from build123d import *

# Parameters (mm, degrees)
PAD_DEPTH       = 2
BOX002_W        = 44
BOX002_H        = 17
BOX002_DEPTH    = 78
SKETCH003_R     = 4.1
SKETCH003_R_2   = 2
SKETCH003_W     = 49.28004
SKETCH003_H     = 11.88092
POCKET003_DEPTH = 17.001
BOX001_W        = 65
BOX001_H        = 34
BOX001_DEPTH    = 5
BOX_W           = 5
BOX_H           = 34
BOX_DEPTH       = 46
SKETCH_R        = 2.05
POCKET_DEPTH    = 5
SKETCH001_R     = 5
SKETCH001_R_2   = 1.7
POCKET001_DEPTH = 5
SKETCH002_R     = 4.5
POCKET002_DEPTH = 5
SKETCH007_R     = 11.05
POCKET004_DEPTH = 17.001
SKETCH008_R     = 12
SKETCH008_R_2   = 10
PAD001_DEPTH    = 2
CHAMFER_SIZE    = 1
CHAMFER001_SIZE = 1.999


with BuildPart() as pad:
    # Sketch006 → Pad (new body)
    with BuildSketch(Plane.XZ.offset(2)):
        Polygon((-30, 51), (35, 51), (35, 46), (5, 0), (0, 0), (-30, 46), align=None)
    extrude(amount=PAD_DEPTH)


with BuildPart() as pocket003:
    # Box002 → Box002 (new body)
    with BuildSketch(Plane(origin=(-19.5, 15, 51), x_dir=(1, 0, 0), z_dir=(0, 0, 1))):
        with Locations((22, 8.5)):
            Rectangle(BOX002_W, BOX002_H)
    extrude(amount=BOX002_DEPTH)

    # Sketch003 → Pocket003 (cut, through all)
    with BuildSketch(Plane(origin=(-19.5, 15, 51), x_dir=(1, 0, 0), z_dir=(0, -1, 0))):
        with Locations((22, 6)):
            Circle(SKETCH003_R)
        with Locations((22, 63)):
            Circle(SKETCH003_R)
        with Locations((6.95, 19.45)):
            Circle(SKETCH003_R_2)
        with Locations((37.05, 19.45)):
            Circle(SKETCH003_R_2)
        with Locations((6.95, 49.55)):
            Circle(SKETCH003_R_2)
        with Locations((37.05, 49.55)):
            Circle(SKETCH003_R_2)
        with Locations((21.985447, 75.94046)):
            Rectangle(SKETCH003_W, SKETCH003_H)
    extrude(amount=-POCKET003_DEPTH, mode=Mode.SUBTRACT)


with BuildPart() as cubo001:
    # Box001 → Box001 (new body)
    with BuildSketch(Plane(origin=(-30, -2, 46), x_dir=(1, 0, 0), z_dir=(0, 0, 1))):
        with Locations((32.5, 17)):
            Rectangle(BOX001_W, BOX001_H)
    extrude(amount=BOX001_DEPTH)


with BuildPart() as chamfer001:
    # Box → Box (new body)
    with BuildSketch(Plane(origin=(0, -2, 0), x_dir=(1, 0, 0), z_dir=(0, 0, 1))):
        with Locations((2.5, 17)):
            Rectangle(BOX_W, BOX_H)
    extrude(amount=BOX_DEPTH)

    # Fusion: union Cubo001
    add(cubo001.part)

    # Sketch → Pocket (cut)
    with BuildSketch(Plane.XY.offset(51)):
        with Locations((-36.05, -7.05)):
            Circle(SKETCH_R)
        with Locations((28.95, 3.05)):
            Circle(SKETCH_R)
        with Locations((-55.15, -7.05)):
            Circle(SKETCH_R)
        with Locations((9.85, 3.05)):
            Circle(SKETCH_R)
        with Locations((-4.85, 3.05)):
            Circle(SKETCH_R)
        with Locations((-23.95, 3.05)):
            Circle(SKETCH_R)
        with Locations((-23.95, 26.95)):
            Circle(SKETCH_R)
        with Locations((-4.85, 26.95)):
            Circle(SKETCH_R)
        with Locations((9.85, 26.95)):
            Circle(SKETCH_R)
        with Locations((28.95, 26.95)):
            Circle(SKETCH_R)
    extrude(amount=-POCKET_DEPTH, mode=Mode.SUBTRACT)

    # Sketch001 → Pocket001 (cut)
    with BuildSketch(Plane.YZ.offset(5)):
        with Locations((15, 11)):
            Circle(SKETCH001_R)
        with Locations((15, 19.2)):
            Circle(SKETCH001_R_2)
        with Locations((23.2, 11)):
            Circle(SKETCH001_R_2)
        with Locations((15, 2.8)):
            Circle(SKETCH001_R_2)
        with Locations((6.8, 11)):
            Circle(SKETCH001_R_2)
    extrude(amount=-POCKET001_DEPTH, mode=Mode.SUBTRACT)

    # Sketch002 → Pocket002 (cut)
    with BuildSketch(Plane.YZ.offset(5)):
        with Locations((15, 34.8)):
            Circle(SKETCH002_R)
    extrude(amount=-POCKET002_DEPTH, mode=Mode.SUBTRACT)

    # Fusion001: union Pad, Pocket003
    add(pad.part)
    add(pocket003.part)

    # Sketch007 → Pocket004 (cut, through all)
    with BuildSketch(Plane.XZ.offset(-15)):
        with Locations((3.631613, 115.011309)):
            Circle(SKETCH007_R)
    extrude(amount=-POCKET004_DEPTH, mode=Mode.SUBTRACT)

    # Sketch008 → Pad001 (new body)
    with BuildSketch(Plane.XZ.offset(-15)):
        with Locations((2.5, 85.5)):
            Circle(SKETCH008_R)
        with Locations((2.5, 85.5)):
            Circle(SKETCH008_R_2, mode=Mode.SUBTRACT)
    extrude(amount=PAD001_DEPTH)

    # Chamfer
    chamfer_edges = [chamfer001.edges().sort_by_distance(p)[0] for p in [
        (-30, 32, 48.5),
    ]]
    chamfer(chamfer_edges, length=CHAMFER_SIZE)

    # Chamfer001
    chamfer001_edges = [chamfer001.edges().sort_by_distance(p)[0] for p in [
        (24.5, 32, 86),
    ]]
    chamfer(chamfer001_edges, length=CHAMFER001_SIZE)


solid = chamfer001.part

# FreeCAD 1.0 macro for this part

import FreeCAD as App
import Part
import Sketcher
from FreeCAD import Vector


def edges_at(feature, points):
    """Names of the edges that pass closest to the given points."""
    edges = feature.Shape.Edges
    near = lambda p: min(range(len(edges)), key=lambda i: edges[i].distToShape(Part.Vertex(*p))[0])
    return sorted({f"Edge{near(p) + 1}" for p in points})

doc = App.newDocument("Part")
body = doc.addObject("PartDesign::Body", "Body")

sketch1 = body.newObject("Sketcher::SketchObject", "Sketch")
sketch1.AttachmentSupport = (doc.getObject("XZ_Plane"), [""])
sketch1.MapMode = "FlatFace"
sketch1.AttachmentOffset = App.Placement(Vector(0, 0, 2), App.Rotation())
sketch1.addGeometry([
    Part.LineSegment(Vector(35, 51, 0), Vector(-30, 51, 0)),
    Part.LineSegment(Vector(-30, 51, 0), Vector(-30, 46, 0)),
    Part.LineSegment(Vector(-30, 46, 0), Vector(0, 0, 0)),
    Part.LineSegment(Vector(0, 0, 0), Vector(5, 0, 0)),
    Part.LineSegment(Vector(5, 0, 0), Vector(35, 46, 0)),
    Part.LineSegment(Vector(35, 46, 0), Vector(35, 51, 0)),
], False)
sketch1.addConstraint([
    Sketcher.Constraint("Coincident", 0, 2, 1, 1),
    Sketcher.Constraint("Coincident", 1, 2, 2, 1),
    Sketcher.Constraint("Coincident", 2, 2, 3, 1),
    Sketcher.Constraint("Coincident", 3, 2, 4, 1),
    Sketcher.Constraint("Coincident", 4, 2, 5, 1),
    Sketcher.Constraint("Coincident", 5, 2, 0, 1),
    Sketcher.Constraint("Horizontal", 0),
    Sketcher.Constraint("Vertical", 1),
    Sketcher.Constraint("Horizontal", 3),
    Sketcher.Constraint("Vertical", 5),
    Sketcher.Constraint("Coincident", 2, 2, -1, 1),
    Sketcher.Constraint("Horizontal", 1, 2, 4, 2),
    Sketcher.Constraint("Equal", 3, 1),
    Sketcher.Constraint("Equal", 2, 4),
    Sketcher.Constraint("DistanceX", 0, 2, 0, 1, 65.0),
    Sketcher.Constraint("DistanceX", 3, 1, 3, 2, 5.0),
    Sketcher.Constraint("DistanceY", -1, 1, 0, 2, 51.0),
])
pad1 = body.newObject("PartDesign::Pad", "Pad")
pad1.Profile = sketch1
pad1.Length = 2
body2 = doc.addObject("PartDesign::Body", "Body001")

sketch2 = body2.newObject("Sketcher::SketchObject", "Sketch001")
sketch2.AttachmentSupport = (doc.getObject("XY_Plane001"), [""])
sketch2.MapMode = "FlatFace"
sketch2.AttachmentOffset = App.Placement(Vector(0, 0, 51), App.Rotation())
sketch2.addGeometry([
    Part.LineSegment(Vector(-20, 32, 0), Vector(-20, 15, 0)),
    Part.LineSegment(Vector(-20, 15, 0), Vector(24, 15, 0)),
    Part.LineSegment(Vector(24, 15, 0), Vector(24, 32, 0)),
    Part.LineSegment(Vector(24, 32, 0), Vector(-20, 32, 0)),
], False)
sketch2.addConstraint([
    Sketcher.Constraint("Coincident", 0, 2, 1, 1),
    Sketcher.Constraint("Coincident", 1, 2, 2, 1),
    Sketcher.Constraint("Coincident", 2, 2, 3, 1),
    Sketcher.Constraint("Coincident", 3, 2, 0, 1),
    Sketcher.Constraint("Vertical", 0),
    Sketcher.Constraint("Horizontal", 1),
    Sketcher.Constraint("Vertical", 2),
    Sketcher.Constraint("Horizontal", 3),
    Sketcher.Constraint("DistanceX", 1, 1, 1, 2, 44.0),
    Sketcher.Constraint("DistanceY", 0, 2, 0, 1, 17.0),
    Sketcher.Constraint("DistanceY", -1, 1, 0, 2, 15.0),
    Sketcher.Constraint("DistanceX", 0, 2, -1, 1, 19.5),
])
pad2 = body2.newObject("PartDesign::Pad", "Pad001")
pad2.Profile = sketch2
pad2.Length = 78

sketch3 = body2.newObject("Sketcher::SketchObject", "Sketch002")
sketch3.AttachmentSupport = (doc.getObject("XZ_Plane001"), [""])
sketch3.MapMode = "FlatFace"
sketch3.AttachmentOffset = App.Placement(Vector(0, 0, -15), App.Rotation())
sketch3.addGeometry([
    Part.Circle(Vector(2.5, 57, 0), Vector(0, 0, 1), 4.1),
    Part.Circle(Vector(2.5, 114, 0), Vector(0, 0, 1), 4.1),
    Part.Circle(Vector(-12.6, 70.5, 0), Vector(0, 0, 1), 2),
    Part.Circle(Vector(17.6, 70.5, 0), Vector(0, 0, 1), 2),
    Part.Circle(Vector(-12.6, 100.5, 0), Vector(0, 0, 1), 2),
    Part.Circle(Vector(17.6, 100.5, 0), Vector(0, 0, 1), 2),
    Part.LineSegment(Vector(-22.2, 132.9, 0), Vector(-22.2, 121, 0)),
    Part.LineSegment(Vector(-22.2, 121, 0), Vector(27.1, 121, 0)),
    Part.LineSegment(Vector(27.1, 121, 0), Vector(27.1, 132.9, 0)),
    Part.LineSegment(Vector(27.1, 132.9, 0), Vector(-22.2, 132.9, 0)),
], False)
sketch3.addConstraint([
    Sketcher.Constraint("Coincident", 6, 2, 7, 1),
    Sketcher.Constraint("Coincident", 7, 2, 8, 1),
    Sketcher.Constraint("Coincident", 8, 2, 9, 1),
    Sketcher.Constraint("Coincident", 9, 2, 6, 1),
    Sketcher.Constraint("Vertical", 6),
    Sketcher.Constraint("Horizontal", 7),
    Sketcher.Constraint("Vertical", 8),
    Sketcher.Constraint("Horizontal", 9),
    Sketcher.Constraint("Equal", 0, 1),
    Sketcher.Constraint("Equal", 2, 3),
    Sketcher.Constraint("Equal", 3, 4),
    Sketcher.Constraint("Equal", 4, 5),
    Sketcher.Constraint("Horizontal", 2, 3, 3, 3),
    Sketcher.Constraint("Horizontal", 4, 3, 5, 3),
    Sketcher.Constraint("Vertical", 0, 3, 1, 3),
    Sketcher.Constraint("Vertical", 2, 3, 4, 3),
    Sketcher.Constraint("Vertical", 3, 3, 5, 3),
    Sketcher.Constraint("Diameter", 2, 4.0),
    Sketcher.Constraint("Diameter", 0, 8.2),
    Sketcher.Constraint("DistanceY", -1, 1, 0, 3, 57.0),
    Sketcher.Constraint("DistanceY", -1, 1, 1, 3, 114.0),
    Sketcher.Constraint("DistanceY", -1, 1, 6, 2, 121.0),
    Sketcher.Constraint("DistanceX", -1, 1, 0, 3, 2.5),
    Sketcher.Constraint("DistanceX", 2, 3, 3, 3, 30.1),
    Sketcher.Constraint("DistanceY", 2, 3, 4, 3, 30.1),
    Sketcher.Constraint("DistanceX", 2, 3, -1, 1, 12.55),
    Sketcher.Constraint("DistanceY", -1, 1, 2, 3, 70.45),
    Sketcher.Constraint("DistanceX", 7, 1, 7, 2, 49.28004),
    Sketcher.Constraint("DistanceY", 6, 2, 6, 1, 11.88092),
    Sketcher.Constraint("DistanceX", 6, 2, -1, 1, 22.154573),
])
pocket1 = body2.newObject("PartDesign::Pocket", "Pocket")
pocket1.Profile = sketch3
pocket1.Type = "ThroughAll"
body3 = doc.addObject("PartDesign::Body", "Body002")

sketch4 = body3.newObject("Sketcher::SketchObject", "Sketch003")
sketch4.AttachmentSupport = (doc.getObject("XY_Plane002"), [""])
sketch4.MapMode = "FlatFace"
sketch4.AttachmentOffset = App.Placement(Vector(0, 0, 46), App.Rotation())
sketch4.addGeometry([
    Part.LineSegment(Vector(-30, 32, 0), Vector(-30, -2, 0)),
    Part.LineSegment(Vector(-30, -2, 0), Vector(35, -2, 0)),
    Part.LineSegment(Vector(35, -2, 0), Vector(35, 32, 0)),
    Part.LineSegment(Vector(35, 32, 0), Vector(-30, 32, 0)),
], False)
sketch4.addConstraint([
    Sketcher.Constraint("Coincident", 0, 2, 1, 1),
    Sketcher.Constraint("Coincident", 1, 2, 2, 1),
    Sketcher.Constraint("Coincident", 2, 2, 3, 1),
    Sketcher.Constraint("Coincident", 3, 2, 0, 1),
    Sketcher.Constraint("Vertical", 0),
    Sketcher.Constraint("Horizontal", 1),
    Sketcher.Constraint("Vertical", 2),
    Sketcher.Constraint("Horizontal", 3),
    Sketcher.Constraint("DistanceX", 1, 1, 1, 2, 65.0),
    Sketcher.Constraint("DistanceY", 0, 2, 0, 1, 34.0),
    Sketcher.Constraint("DistanceX", 0, 2, -1, 1, 30.0),
    Sketcher.Constraint("DistanceY", 0, 2, -1, 1, 2.0),
])
pad3 = body3.newObject("PartDesign::Pad", "Pad002")
pad3.Profile = sketch4
pad3.Length = 5
body4 = doc.addObject("PartDesign::Body", "Body003")

sketch5 = body4.newObject("Sketcher::SketchObject", "Sketch004")
sketch5.AttachmentSupport = (doc.getObject("XY_Plane003"), [""])
sketch5.MapMode = "FlatFace"
sketch5.addGeometry([
    Part.LineSegment(Vector(0, 32, 0), Vector(0, -2, 0)),
    Part.LineSegment(Vector(0, -2, 0), Vector(5, -2, 0)),
    Part.LineSegment(Vector(5, -2, 0), Vector(5, 32, 0)),
    Part.LineSegment(Vector(5, 32, 0), Vector(0, 32, 0)),
], False)
sketch5.addConstraint([
    Sketcher.Constraint("Coincident", 0, 2, 1, 1),
    Sketcher.Constraint("Coincident", 1, 2, 2, 1),
    Sketcher.Constraint("Coincident", 2, 2, 3, 1),
    Sketcher.Constraint("Coincident", 3, 2, 0, 1),
    Sketcher.Constraint("Vertical", 0),
    Sketcher.Constraint("Horizontal", 1),
    Sketcher.Constraint("Vertical", 2),
    Sketcher.Constraint("Horizontal", 3),
    Sketcher.Constraint("PointOnObject", 0, 2, -2),
    Sketcher.Constraint("DistanceX", 1, 1, 1, 2, 5.0),
    Sketcher.Constraint("DistanceY", 0, 2, 0, 1, 34.0),
    Sketcher.Constraint("DistanceY", 0, 2, -1, 1, 2.0),
])
pad4 = body4.newObject("PartDesign::Pad", "Pad003")
pad4.Profile = sketch5
pad4.Length = 46
doc.recompute()

boolean = body4.newObject("PartDesign::Boolean", "Boolean")
boolean.Type = "Fuse"
boolean.addObjects([body3])

sketch6 = body4.newObject("Sketcher::SketchObject", "Sketch005")
sketch6.AttachmentSupport = (doc.getObject("XY_Plane003"), [""])
sketch6.MapMode = "FlatFace"
sketch6.AttachmentOffset = App.Placement(Vector(0, 0, 51), App.Rotation())
sketch6.addGeometry([
    Part.Circle(Vector(-36, -7, 0), Vector(0, 0, 1), 2),
    Part.Circle(Vector(28.9, 3, 0), Vector(0, 0, 1), 2),
    Part.Circle(Vector(-55.1, -7, 0), Vector(0, 0, 1), 2),
    Part.Circle(Vector(9.8, 3, 0), Vector(0, 0, 1), 2),
    Part.Circle(Vector(-4.8, 3, 0), Vector(0, 0, 1), 2),
    Part.Circle(Vector(-23.9, 3, 0), Vector(0, 0, 1), 2),
    Part.Circle(Vector(-23.9, 26.9, 0), Vector(0, 0, 1), 2),
    Part.Circle(Vector(-4.8, 26.9, 0), Vector(0, 0, 1), 2),
    Part.Circle(Vector(9.8, 26.9, 0), Vector(0, 0, 1), 2),
    Part.Circle(Vector(28.9, 26.9, 0), Vector(0, 0, 1), 2),
], False)
sketch6.addConstraint([
    Sketcher.Constraint("Equal", 0, 1),
    Sketcher.Constraint("Equal", 1, 2),
    Sketcher.Constraint("Equal", 2, 3),
    Sketcher.Constraint("Equal", 3, 4),
    Sketcher.Constraint("Equal", 4, 5),
    Sketcher.Constraint("Equal", 5, 6),
    Sketcher.Constraint("Equal", 6, 7),
    Sketcher.Constraint("Equal", 7, 8),
    Sketcher.Constraint("Equal", 8, 9),
    Sketcher.Constraint("Horizontal", 0, 3, 2, 3),
    Sketcher.Constraint("Horizontal", 1, 3, 3, 3),
    Sketcher.Constraint("Horizontal", 3, 3, 4, 3),
    Sketcher.Constraint("Horizontal", 4, 3, 5, 3),
    Sketcher.Constraint("Horizontal", 6, 3, 7, 3),
    Sketcher.Constraint("Horizontal", 7, 3, 8, 3),
    Sketcher.Constraint("Horizontal", 8, 3, 9, 3),
    Sketcher.Constraint("Vertical", 5, 3, 6, 3),
    Sketcher.Constraint("Vertical", 4, 3, 7, 3),
    Sketcher.Constraint("Vertical", 3, 3, 8, 3),
    Sketcher.Constraint("Vertical", 1, 3, 9, 3),
    Sketcher.Constraint("Diameter", 0, 4.1),
    Sketcher.Constraint("DistanceX", 0, 3, 1, 3, 65.0),
    Sketcher.Constraint("DistanceX", 2, 3, 3, 3, 65.0),
    Sketcher.Constraint("DistanceY", 0, 3, 6, 3, 34.0),
    Sketcher.Constraint("DistanceY", 0, 3, 1, 3, 10.1),
    Sketcher.Constraint("DistanceX", 2, 3, 0, 3, 19.1),
    Sketcher.Constraint("DistanceX", 4, 3, 3, 3, 14.7),
    Sketcher.Constraint("DistanceX", 0, 3, 5, 3, 12.1),
    Sketcher.Constraint("DistanceX", 0, 3, -1, 1, 36.05),
    Sketcher.Constraint("DistanceY", 0, 3, -1, 1, 7.05),
])
pocket2 = body4.newObject("PartDesign::Pocket", "Pocket001")
pocket2.Profile = sketch6
pocket2.Length = 5

sketch7 = body4.newObject("Sketcher::SketchObject", "Sketch006")
sketch7.AttachmentSupport = (doc.getObject("YZ_Plane003"), [""])
sketch7.MapMode = "FlatFace"
sketch7.AttachmentOffset = App.Placement(Vector(0, 0, 5), App.Rotation())
sketch7.addGeometry([
    Part.Circle(Vector(15, 11, 0), Vector(0, 0, 1), 5),
    Part.Circle(Vector(15, 19.2, 0), Vector(0, 0, 1), 1.7),
    Part.Circle(Vector(23.2, 11, 0), Vector(0, 0, 1), 1.7),
    Part.Circle(Vector(15, 2.8, 0), Vector(0, 0, 1), 1.7),
    Part.Circle(Vector(6.8, 11, 0), Vector(0, 0, 1), 1.7),
], False)
sketch7.addConstraint([
    Sketcher.Constraint("Equal", 1, 2),
    Sketcher.Constraint("Equal", 2, 3),
    Sketcher.Constraint("Equal", 3, 4),
    Sketcher.Constraint("Horizontal", 0, 3, 2, 3),
    Sketcher.Constraint("Horizontal", 2, 3, 4, 3),
    Sketcher.Constraint("Vertical", 0, 3, 1, 3),
    Sketcher.Constraint("Vertical", 1, 3, 3, 3),
    Sketcher.Constraint("Diameter", 0, 10.0),
    Sketcher.Constraint("Diameter", 1, 3.4),
    Sketcher.Constraint("DistanceX", -1, 1, 0, 3, 15.0),
    Sketcher.Constraint("DistanceY", -1, 1, 0, 3, 11.0),
    Sketcher.Constraint("DistanceY", -1, 1, 1, 3, 19.2),
    Sketcher.Constraint("DistanceX", -1, 1, 2, 3, 23.2),
    Sketcher.Constraint("DistanceY", -1, 1, 3, 3, 2.8),
    Sketcher.Constraint("DistanceX", -1, 1, 4, 3, 6.8),
])
pocket3 = body4.newObject("PartDesign::Pocket", "Pocket002")
pocket3.Profile = sketch7
pocket3.Length = 5

sketch8 = body4.newObject("Sketcher::SketchObject", "Sketch007")
sketch8.AttachmentSupport = (doc.getObject("YZ_Plane003"), [""])
sketch8.MapMode = "FlatFace"
sketch8.AttachmentOffset = App.Placement(Vector(0, 0, 5), App.Rotation())
sketch8.addGeometry(Part.Circle(Vector(15, 34.8, 0), Vector(0, 0, 1), 4.5), False)
sketch8.addConstraint([
    Sketcher.Constraint("Diameter", 0, 9.0),
    Sketcher.Constraint("DistanceX", -1, 1, 0, 3, 15.0),
    Sketcher.Constraint("DistanceY", -1, 1, 0, 3, 34.8),
])
pocket4 = body4.newObject("PartDesign::Pocket", "Pocket003")
pocket4.Profile = sketch8
pocket4.Length = 5
doc.recompute()

boolean2 = body4.newObject("PartDesign::Boolean", "Boolean001")
boolean2.Type = "Fuse"
boolean2.addObjects([body])
doc.recompute()

boolean3 = body4.newObject("PartDesign::Boolean", "Boolean002")
boolean3.Type = "Fuse"
boolean3.addObjects([body2])

sketch9 = body4.newObject("Sketcher::SketchObject", "Sketch008")
sketch9.AttachmentSupport = (doc.getObject("XZ_Plane003"), [""])
sketch9.MapMode = "FlatFace"
sketch9.AttachmentOffset = App.Placement(Vector(0, 0, -15), App.Rotation())
sketch9.addGeometry(Part.Circle(Vector(4, 115, 0), Vector(0, 0, 1), 11), False)
sketch9.addConstraint([
    Sketcher.Constraint("Diameter", 0, 22.1),
    Sketcher.Constraint("DistanceY", -1, 1, 0, 3, 115.011309),
    Sketcher.Constraint("DistanceX", -1, 1, 0, 3, 3.631613),
])
pocket5 = body4.newObject("PartDesign::Pocket", "Pocket004")
pocket5.Profile = sketch9
pocket5.Type = "ThroughAll"

sketch10 = body4.newObject("Sketcher::SketchObject", "Sketch009")
sketch10.AttachmentSupport = (doc.getObject("XZ_Plane003"), [""])
sketch10.MapMode = "FlatFace"
sketch10.AttachmentOffset = App.Placement(Vector(0, 0, -15), App.Rotation())
sketch10.addGeometry([
    Part.Circle(Vector(2, 86, 0), Vector(0, 0, 1), 12),
    Part.Circle(Vector(2, 86, 0), Vector(0, 0, 1), 10),
], False)
sketch10.addConstraint([
    Sketcher.Constraint("Coincident", 1, 3, 0, 3),
    Sketcher.Constraint("Diameter", 0, 24.0),
    Sketcher.Constraint("Diameter", 1, 20.0),
    Sketcher.Constraint("DistanceX", -1, 1, 0, 3, 2.5),
    Sketcher.Constraint("DistanceY", -1, 1, 0, 3, 85.5),
])
pad5 = body4.newObject("PartDesign::Pad", "Pad004")
pad5.Profile = sketch10
pad5.Length = 2
doc.recompute()

chamfer = body4.newObject("PartDesign::Chamfer", "Chamfer")
chamfer.Base = (pad5, edges_at(pad5, [(-30, 32, 48.5)]))
chamfer.Size = 1
doc.recompute()

chamfer2 = body4.newObject("PartDesign::Chamfer", "Chamfer001")
chamfer2.Base = (chamfer, edges_at(chamfer, [(24.5, 32, 86)]))
chamfer2.Size = 1.999

doc.recompute()
